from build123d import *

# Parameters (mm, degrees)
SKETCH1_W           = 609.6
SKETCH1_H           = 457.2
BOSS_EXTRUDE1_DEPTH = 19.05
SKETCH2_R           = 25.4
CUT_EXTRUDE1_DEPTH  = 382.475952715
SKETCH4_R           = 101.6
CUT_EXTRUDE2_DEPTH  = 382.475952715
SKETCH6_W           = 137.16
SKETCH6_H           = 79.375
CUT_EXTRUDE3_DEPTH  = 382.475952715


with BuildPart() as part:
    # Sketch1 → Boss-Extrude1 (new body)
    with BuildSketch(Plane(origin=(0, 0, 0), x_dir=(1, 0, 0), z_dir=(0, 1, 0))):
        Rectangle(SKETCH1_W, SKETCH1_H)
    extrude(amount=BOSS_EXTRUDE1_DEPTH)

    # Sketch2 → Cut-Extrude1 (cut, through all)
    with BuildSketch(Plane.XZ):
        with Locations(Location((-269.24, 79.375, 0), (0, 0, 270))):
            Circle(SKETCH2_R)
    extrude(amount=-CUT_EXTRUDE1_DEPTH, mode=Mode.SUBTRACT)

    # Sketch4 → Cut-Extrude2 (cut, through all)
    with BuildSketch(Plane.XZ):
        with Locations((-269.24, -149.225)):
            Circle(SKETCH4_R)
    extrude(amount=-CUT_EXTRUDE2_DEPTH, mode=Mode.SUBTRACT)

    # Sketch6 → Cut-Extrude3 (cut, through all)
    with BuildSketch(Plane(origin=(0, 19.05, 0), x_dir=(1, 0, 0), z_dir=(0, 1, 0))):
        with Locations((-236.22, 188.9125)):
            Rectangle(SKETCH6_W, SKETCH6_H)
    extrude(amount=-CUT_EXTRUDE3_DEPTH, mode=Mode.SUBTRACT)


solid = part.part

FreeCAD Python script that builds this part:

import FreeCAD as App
import Part
import Sketcher

V = App.Vector
Q = App.Units.Quantity


def add_polygon(sketch, points):
    """Adds a closed chain of lines whose ends are joined by coincident constraints."""
    first, n = sketch.GeometryCount, len(points)
    for a, b in zip(points, points[1:] + points[:1]):
        sketch.addGeometry(Part.LineSegment(App.Vector(*a, 0), App.Vector(*b, 0)), False)
    for i in range(n):
        sketch.addConstraint(Sketcher.Constraint("Coincident", first + i, 2, first + (i + 1) % n, 1))

doc = App.newDocument("Part")
body = doc.addObject("PartDesign::Body", "Body")

sketch1 = body.newObject("Sketcher::SketchObject", "Sketch")
sketch1.AttachmentSupport = (doc.getObject("XZ_Plane"), [""])
sketch1.MapMode = "FlatFace"
add_polygon(sketch1, [(-305, -229), (-305, 229), (305, 229), (305, -229)])
sketch1.addConstraint([
    Sketcher.Constraint("Vertical", 0),
    Sketcher.Constraint("Horizontal", 1),
    Sketcher.Constraint("Vertical", 2),
    Sketcher.Constraint("Horizontal", 3),
    Sketcher.Constraint("Symmetric", 0, 2, 2, 2, -1, 1),
    Sketcher.Constraint("DistanceX", 1, 1, 1, 2, Q("24 in")),
    Sketcher.Constraint("DistanceY", 0, 1, 0, 2, Q("18 in")),
])
pad1 = body.newObject("PartDesign::Pad", "Pad")
pad1.Profile = sketch1
pad1.Length = Q("0.75 in")
pad1.Reversed = True

sketch2 = body.newObject("Sketcher::SketchObject", "Sketch001")
sketch2.AttachmentSupport = (doc.getObject("XZ_Plane"), [""])
sketch2.MapMode = "FlatFace"
sketch2.addGeometry(Part.Circle(V(-269, 79, 0), V(0, 0, 1), 25), False)
sketch2.addConstraint([
    Sketcher.Constraint("Diameter", 0, Q("2 in")),
    Sketcher.Constraint("DistanceX", 0, 3, -1, 1, Q("10.6 in")),
    Sketcher.Constraint("DistanceY", -1, 1, 0, 3, Q("3.125 in")),
])
pocket1 = body.newObject("PartDesign::Pocket", "Pocket")
pocket1.Profile = sketch2
pocket1.Type = "ThroughAll"

sketch3 = body.newObject("Sketcher::SketchObject", "Sketch002")
sketch3.AttachmentSupport = (doc.getObject("XZ_Plane"), [""])
sketch3.MapMode = "FlatFace"
sketch3.addGeometry(Part.Circle(V(-269, -149, 0), V(0, 0, 1), 102), False)
sketch3.addConstraint([
    Sketcher.Constraint("Diameter", 0, Q("8 in")),
    Sketcher.Constraint("DistanceX", 0, 3, -1, 1, Q("10.6 in")),
    Sketcher.Constraint("DistanceY", 0, 3, -1, 1, Q("5.875 in")),
])
pocket2 = body.newObject("PartDesign::Pocket", "Pocket001")
pocket2.Profile = sketch3
pocket2.Type = "ThroughAll"

sketch4 = body.newObject("Sketcher::SketchObject", "Sketch003")
sketch4.AttachmentSupport = (doc.getObject("XZ_Plane"), [""])
sketch4.MapMode = "FlatFace"
sketch4.AttachmentOffset = App.Placement(V(0, 0, -0.75 * 25.4), App.Rotation())
add_polygon(sketch4, [(-305, -229), (-305, -149), (-168, -149), (-168, -229)])
sketch4.addConstraint([
    Sketcher.Constraint("Vertical", 0),
    Sketcher.Constraint("Horizontal", 1),
    Sketcher.Constraint("Vertical", 2),
    Sketcher.Constraint("Horizontal", 3),
    Sketcher.Constraint("DistanceX", 1, 1, 1, 2, Q("5.4 in")),
    Sketcher.Constraint("DistanceX", 0, 2, -1, 1, Q("12 in")),
    Sketcher.Constraint("DistanceY", 2, 2, -1, 1, Q("9 in")),
    Sketcher.Constraint("DistanceY", 0, 1, 0, 2, Q("3.125 in")),
])
pocket3 = body.newObject("PartDesign::Pocket", "Pocket002")
pocket3.Profile = sketch4
pocket3.Type = "ThroughAll"
pocket3.Reversed = True

doc.recompute()
